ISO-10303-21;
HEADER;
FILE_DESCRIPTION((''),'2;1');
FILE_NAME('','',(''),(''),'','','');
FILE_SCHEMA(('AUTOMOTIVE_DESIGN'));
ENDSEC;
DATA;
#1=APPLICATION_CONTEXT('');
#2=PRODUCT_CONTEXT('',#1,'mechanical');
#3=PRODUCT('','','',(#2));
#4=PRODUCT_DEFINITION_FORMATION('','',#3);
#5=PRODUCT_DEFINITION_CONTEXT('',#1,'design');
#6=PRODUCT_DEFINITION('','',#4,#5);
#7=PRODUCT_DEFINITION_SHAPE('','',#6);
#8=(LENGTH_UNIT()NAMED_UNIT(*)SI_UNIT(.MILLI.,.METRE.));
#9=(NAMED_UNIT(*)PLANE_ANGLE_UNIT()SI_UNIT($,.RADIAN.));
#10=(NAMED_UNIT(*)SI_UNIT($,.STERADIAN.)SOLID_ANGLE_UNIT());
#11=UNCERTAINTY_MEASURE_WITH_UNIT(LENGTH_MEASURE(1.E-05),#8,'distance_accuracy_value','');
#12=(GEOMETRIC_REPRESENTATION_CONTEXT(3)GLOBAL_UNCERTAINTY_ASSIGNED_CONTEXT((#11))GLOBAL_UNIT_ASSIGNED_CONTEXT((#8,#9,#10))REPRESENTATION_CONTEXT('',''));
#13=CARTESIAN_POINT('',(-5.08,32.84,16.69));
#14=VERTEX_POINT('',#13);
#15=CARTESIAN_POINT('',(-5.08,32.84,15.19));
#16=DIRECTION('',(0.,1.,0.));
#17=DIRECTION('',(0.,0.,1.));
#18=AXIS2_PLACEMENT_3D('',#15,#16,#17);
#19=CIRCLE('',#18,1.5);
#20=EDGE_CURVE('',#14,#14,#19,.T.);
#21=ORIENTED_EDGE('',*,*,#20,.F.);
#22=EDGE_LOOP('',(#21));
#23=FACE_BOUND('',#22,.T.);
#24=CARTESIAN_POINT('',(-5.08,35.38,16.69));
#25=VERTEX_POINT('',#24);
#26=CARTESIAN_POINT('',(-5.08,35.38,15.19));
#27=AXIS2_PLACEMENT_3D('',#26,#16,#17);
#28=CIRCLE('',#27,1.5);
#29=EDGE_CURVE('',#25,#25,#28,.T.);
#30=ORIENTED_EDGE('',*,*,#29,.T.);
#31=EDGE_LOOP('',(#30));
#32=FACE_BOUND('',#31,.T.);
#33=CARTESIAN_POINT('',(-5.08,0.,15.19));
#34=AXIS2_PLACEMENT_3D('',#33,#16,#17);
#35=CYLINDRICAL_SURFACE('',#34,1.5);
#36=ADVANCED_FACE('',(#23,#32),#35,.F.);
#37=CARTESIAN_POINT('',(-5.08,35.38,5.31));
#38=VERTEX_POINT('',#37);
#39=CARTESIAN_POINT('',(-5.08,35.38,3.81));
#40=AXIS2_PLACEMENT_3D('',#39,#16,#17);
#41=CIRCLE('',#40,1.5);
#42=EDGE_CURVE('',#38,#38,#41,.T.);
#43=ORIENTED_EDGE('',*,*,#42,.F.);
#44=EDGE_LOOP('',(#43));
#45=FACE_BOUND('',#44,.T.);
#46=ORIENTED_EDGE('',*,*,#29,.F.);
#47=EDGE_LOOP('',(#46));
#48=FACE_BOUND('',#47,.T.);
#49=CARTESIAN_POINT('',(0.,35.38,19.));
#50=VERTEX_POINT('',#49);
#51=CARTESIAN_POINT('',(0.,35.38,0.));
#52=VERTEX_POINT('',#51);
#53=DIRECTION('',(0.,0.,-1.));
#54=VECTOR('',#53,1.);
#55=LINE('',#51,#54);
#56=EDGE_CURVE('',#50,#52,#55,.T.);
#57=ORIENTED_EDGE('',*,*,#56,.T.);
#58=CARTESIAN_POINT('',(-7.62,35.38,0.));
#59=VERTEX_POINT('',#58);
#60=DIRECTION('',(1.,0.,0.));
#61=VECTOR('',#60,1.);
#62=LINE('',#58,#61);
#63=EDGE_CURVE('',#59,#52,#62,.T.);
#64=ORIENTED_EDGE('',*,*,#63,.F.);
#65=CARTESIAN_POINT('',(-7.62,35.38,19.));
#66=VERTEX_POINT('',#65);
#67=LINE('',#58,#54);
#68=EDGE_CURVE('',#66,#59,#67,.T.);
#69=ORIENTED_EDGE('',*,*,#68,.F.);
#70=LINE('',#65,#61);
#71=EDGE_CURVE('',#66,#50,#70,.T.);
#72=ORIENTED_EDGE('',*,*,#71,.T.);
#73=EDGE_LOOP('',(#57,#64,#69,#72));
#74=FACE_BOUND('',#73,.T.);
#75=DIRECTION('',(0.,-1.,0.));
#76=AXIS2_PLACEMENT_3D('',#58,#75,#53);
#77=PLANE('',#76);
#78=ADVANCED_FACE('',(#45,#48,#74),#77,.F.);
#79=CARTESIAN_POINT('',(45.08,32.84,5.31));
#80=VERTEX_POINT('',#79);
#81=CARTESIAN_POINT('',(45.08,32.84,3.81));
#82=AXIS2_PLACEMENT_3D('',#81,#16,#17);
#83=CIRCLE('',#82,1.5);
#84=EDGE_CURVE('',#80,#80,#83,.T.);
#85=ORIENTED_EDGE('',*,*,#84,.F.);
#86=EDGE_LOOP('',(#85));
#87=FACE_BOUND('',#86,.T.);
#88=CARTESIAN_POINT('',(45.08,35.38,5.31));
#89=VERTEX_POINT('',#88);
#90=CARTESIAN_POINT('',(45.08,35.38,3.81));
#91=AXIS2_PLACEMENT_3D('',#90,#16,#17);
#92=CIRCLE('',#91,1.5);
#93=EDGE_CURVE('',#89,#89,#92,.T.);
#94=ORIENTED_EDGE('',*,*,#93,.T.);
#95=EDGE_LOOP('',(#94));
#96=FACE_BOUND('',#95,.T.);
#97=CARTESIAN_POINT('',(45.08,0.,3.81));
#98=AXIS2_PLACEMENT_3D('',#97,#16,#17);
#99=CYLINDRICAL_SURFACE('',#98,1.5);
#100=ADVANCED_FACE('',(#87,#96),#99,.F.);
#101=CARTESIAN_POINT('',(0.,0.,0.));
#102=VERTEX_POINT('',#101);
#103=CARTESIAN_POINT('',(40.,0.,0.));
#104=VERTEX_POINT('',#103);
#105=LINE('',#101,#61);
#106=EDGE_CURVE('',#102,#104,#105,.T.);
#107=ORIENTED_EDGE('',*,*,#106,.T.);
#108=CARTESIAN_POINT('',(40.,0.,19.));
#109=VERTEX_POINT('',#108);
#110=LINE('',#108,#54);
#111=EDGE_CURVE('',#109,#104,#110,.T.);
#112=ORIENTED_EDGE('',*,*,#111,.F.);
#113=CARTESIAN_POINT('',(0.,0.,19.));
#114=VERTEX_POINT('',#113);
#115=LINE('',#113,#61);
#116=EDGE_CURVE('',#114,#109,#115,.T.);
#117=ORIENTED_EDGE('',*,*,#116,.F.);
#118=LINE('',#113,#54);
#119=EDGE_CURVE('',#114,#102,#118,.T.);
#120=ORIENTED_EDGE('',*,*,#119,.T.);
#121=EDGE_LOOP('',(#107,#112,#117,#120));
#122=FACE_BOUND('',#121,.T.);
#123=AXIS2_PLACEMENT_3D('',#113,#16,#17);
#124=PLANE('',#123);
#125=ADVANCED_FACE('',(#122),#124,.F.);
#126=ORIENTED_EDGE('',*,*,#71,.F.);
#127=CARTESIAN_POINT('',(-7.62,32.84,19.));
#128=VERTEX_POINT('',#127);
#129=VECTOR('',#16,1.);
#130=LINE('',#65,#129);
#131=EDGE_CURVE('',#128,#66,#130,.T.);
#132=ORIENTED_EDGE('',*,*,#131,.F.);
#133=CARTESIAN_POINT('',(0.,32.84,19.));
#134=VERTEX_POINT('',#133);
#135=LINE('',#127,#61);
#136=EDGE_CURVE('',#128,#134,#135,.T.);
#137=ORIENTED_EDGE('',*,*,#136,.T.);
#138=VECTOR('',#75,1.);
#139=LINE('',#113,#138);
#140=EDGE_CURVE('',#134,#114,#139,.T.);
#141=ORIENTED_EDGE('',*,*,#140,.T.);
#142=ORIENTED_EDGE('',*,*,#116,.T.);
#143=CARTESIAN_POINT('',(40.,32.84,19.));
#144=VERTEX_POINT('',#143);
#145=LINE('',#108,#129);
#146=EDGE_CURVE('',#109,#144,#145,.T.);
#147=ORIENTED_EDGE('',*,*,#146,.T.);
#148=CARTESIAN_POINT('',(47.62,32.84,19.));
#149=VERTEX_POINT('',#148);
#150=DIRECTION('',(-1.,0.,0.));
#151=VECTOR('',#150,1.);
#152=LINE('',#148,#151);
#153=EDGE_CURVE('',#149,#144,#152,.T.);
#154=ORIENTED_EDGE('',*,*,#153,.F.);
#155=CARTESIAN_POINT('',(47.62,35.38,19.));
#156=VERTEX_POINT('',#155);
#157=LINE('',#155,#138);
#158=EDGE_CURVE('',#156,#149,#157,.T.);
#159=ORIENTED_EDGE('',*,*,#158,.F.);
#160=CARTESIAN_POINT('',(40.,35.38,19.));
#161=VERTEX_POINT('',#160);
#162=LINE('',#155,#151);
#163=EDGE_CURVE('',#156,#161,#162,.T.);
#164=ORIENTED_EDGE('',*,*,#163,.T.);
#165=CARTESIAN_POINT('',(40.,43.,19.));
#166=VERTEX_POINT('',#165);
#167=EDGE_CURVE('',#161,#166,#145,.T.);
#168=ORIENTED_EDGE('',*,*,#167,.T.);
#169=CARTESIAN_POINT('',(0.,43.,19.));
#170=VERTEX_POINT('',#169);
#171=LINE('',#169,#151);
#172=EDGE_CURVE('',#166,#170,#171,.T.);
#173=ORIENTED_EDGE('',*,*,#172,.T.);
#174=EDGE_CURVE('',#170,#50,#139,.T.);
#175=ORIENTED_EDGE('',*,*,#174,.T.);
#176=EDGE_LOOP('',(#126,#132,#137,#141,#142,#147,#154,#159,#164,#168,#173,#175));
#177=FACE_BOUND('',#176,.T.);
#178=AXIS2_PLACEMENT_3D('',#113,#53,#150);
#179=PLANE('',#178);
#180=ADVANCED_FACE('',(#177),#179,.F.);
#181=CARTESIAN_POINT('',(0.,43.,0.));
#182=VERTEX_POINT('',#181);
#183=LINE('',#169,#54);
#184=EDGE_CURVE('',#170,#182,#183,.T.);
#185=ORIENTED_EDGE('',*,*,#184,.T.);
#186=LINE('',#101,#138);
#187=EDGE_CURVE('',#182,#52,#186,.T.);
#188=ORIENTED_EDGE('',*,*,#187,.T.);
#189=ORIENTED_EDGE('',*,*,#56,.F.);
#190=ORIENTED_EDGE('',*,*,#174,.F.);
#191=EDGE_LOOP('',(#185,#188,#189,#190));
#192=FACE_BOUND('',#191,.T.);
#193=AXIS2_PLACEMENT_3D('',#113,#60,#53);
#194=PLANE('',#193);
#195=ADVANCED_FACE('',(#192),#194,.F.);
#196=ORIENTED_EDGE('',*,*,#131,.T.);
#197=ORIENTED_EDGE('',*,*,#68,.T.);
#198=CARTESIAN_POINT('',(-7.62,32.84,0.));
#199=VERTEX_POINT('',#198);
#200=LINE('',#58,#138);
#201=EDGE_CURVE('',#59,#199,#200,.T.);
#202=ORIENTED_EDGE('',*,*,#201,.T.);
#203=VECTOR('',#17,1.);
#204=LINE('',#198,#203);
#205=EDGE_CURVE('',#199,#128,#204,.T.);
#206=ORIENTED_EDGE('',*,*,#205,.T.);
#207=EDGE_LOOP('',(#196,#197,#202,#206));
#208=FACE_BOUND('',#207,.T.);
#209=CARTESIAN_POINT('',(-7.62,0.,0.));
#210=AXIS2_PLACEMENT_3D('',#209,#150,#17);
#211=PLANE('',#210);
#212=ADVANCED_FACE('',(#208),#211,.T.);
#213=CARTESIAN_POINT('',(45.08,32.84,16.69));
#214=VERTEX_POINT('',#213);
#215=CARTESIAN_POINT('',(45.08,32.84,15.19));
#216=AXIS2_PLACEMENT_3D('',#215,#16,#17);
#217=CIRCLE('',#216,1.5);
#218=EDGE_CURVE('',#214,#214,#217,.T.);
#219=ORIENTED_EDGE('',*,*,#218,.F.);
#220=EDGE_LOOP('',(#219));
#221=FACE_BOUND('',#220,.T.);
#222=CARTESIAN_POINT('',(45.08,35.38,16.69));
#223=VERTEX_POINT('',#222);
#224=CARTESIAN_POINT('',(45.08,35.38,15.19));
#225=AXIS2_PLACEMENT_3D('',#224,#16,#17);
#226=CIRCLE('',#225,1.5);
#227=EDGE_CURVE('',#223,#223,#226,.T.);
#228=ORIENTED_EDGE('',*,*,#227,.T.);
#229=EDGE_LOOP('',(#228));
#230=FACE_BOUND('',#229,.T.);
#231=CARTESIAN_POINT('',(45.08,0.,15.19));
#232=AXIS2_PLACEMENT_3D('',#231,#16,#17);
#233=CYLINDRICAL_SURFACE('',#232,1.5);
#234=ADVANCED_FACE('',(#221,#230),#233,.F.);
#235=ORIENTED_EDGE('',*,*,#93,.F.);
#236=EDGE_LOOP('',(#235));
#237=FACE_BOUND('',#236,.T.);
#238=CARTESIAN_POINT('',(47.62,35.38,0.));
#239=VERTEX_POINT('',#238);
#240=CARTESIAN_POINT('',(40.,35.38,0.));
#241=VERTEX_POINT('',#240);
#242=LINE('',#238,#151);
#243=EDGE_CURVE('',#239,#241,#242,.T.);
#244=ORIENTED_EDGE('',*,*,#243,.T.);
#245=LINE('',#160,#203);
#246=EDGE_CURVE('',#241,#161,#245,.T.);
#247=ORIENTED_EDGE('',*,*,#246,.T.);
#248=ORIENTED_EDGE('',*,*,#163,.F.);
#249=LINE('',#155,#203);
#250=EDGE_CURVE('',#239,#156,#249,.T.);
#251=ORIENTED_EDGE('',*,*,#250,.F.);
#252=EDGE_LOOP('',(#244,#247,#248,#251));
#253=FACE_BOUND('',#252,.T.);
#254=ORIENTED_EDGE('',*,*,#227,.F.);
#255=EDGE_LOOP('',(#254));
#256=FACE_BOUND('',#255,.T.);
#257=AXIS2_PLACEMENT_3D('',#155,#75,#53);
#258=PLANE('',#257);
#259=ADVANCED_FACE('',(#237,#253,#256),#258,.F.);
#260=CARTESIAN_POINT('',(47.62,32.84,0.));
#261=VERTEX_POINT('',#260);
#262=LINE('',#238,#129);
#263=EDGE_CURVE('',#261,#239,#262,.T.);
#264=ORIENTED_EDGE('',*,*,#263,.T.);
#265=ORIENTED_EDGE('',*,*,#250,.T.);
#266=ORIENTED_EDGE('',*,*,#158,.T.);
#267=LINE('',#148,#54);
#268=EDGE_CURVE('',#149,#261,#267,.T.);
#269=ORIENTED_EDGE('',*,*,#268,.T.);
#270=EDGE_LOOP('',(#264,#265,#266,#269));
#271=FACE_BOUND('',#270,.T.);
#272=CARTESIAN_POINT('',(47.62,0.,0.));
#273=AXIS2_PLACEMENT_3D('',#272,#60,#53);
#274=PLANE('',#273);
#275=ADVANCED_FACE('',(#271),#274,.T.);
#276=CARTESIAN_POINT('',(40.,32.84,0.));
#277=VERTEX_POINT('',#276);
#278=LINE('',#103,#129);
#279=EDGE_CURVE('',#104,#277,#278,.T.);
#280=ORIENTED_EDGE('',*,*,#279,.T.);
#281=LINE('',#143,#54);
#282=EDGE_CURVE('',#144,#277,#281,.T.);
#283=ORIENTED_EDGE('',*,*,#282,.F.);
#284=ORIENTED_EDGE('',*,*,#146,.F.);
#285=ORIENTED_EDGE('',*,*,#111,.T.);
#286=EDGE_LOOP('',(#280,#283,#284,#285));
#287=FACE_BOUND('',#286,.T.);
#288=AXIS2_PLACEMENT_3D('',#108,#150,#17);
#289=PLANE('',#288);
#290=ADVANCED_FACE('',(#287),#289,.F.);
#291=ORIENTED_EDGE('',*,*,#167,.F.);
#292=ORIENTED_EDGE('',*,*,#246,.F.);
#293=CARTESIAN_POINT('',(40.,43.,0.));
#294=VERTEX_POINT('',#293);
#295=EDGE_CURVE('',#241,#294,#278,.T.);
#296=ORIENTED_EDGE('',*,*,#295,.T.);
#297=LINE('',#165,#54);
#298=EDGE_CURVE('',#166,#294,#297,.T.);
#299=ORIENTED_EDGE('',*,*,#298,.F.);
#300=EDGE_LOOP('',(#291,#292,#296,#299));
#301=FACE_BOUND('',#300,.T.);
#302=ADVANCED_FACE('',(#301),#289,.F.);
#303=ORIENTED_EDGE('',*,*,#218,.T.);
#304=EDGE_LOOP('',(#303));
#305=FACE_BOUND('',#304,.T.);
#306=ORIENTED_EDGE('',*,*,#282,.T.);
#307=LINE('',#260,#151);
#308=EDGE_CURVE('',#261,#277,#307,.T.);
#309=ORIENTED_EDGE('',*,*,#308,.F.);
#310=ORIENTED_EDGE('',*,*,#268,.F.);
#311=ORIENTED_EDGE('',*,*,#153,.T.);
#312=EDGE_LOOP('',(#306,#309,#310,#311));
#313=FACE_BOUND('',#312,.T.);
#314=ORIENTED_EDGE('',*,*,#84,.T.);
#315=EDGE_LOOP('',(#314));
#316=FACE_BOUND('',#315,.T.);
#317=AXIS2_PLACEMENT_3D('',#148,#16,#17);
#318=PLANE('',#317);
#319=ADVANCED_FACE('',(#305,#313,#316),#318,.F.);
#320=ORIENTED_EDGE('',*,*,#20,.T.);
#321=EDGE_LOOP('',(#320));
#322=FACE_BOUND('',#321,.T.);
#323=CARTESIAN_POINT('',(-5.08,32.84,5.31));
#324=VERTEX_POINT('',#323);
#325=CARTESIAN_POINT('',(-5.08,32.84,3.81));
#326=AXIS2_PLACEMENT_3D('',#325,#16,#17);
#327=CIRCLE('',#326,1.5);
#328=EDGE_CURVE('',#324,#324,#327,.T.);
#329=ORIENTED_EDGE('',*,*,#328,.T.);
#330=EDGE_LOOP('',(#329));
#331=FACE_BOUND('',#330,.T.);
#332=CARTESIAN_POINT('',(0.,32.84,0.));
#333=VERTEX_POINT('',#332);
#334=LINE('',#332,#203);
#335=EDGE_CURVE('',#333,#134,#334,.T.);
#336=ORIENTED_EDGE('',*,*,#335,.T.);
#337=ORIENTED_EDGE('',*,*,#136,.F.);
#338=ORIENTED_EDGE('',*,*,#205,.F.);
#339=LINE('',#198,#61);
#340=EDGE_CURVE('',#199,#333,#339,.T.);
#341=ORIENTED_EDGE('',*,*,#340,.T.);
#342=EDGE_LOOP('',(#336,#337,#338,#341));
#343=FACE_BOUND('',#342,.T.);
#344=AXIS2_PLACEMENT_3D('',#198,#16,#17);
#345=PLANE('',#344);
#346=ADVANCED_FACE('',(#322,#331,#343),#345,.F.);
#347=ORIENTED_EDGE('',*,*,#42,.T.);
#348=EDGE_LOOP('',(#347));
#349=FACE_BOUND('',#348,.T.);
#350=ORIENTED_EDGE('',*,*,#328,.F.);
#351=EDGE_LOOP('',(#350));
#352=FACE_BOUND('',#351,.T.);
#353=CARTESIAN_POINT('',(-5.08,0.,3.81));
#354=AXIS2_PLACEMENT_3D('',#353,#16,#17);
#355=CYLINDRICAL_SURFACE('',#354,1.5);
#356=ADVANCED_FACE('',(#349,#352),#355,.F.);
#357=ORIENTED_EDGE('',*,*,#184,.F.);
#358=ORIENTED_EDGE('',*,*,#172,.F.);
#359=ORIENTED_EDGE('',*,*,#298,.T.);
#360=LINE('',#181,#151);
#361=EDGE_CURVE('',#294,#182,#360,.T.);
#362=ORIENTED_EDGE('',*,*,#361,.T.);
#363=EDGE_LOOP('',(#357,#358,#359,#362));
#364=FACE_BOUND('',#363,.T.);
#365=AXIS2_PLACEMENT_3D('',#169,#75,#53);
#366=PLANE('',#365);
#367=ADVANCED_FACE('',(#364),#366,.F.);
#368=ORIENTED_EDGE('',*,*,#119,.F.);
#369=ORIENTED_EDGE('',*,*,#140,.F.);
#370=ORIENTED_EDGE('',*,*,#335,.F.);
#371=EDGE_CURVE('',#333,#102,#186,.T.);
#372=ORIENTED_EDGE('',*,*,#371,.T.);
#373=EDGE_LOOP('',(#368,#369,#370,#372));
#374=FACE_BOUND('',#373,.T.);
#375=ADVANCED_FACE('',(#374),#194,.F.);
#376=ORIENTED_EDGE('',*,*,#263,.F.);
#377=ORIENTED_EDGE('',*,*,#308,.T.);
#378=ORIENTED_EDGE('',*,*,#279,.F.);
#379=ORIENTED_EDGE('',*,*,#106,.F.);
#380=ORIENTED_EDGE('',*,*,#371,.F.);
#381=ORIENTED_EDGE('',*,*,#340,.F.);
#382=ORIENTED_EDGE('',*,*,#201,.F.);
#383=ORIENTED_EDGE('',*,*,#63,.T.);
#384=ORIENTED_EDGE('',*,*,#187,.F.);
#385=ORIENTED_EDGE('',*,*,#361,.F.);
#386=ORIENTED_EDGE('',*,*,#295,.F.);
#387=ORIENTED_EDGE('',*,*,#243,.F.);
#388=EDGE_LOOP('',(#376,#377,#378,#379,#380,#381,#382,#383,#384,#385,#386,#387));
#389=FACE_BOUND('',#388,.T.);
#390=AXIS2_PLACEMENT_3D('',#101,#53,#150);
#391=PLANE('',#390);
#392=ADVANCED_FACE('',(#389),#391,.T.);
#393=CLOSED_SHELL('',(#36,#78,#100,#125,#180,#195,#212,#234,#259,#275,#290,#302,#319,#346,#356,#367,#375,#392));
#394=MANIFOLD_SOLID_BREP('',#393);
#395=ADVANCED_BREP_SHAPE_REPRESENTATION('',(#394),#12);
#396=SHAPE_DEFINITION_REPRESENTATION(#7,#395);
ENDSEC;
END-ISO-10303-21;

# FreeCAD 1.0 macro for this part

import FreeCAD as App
import Part
import Sketcher
Q = App.Units.Quantity


def add_polygon(sketch, points):
    """Adds a closed chain of lines whose ends are joined by coincident constraints."""
    first, n = sketch.GeometryCount, len(points)
    for a, b in zip(points, points[1:] + points[:1]):
        sketch.addGeometry(Part.LineSegment(App.Vector(*a, 0), App.Vector(*b, 0)), False)
    for i in range(n):
        sketch.addConstraint(Sketcher.Constraint("Coincident", first + i, 2, first + (i + 1) % n, 1))

doc = App.newDocument("Part")
body = doc.addObject("PartDesign::Body", "Body")

sketch1 = body.newObject("Sketcher::SketchObject", "Sketch")
sketch1.AttachmentSupport = (doc.getObject("XY_Plane"), [""])
sketch1.MapMode = "FlatFace"
add_polygon(sketch1, [(0, 43), (0, 0), (40, 0), (40, 43)])
sketch1.addConstraint([
    Sketcher.Constraint("Vertical", 0),
    Sketcher.Constraint("Horizontal", 1),
    Sketcher.Constraint("Vertical", 2),
    Sketcher.Constraint("Horizontal", 3),
    Sketcher.Constraint("Coincident", 0, 2, -1, 1),
    Sketcher.Constraint("DistanceX", 1, 1, 1, 2, Q("40 mm")),
    Sketcher.Constraint("DistanceY", 0, 2, 0, 1, Q("43 mm")),
])
pad1 = body.newObject("PartDesign::Pad", "Pad")
pad1.Profile = sketch1
pad1.Length = 19

sketch2 = body.newObject("Sketcher::SketchObject", "Sketch001")
sketch2.AttachmentSupport = (doc.getObject("YZ_Plane"), [""])
sketch2.MapMode = "FlatFace"
sketch2.AttachmentOffset = App.Placement(App.Vector(0, 0, 40), App.Rotation())
add_polygon(sketch2, [(35.4, 19), (32.8, 19), (32.8, 0), (35.4, 0)])
sketch2.addConstraint([
    Sketcher.Constraint("Horizontal", 0),
    Sketcher.Constraint("Vertical", 1),
    Sketcher.Constraint("Horizontal", 2),
    Sketcher.Constraint("Vertical", 3),
    Sketcher.Constraint("PointOnObject", 1, 2, -1),
    Sketcher.Constraint("DistanceY", 1, 2, 1, 1, Q("19 mm")),
    Sketcher.Constraint("DistanceX", 0, 2, 0, 1, Q("2.54 mm")),
    Sketcher.Constraint("DistanceX", -1, 1, 0, 2, Q("32.84 mm")),
])
pad2 = body.newObject("PartDesign::Pad", "Pad001")
pad2.Profile = sketch2
pad2.Length = 7.62

sketch3 = body.newObject("Sketcher::SketchObject", "Sketch002")
sketch3.AttachmentSupport = (doc.getObject("XZ_Plane"), [""])
sketch3.MapMode = "FlatFace"
sketch3.AttachmentOffset = App.Placement(App.Vector(0, 0, -35.38), App.Rotation())
sketch3.addGeometry([
    Part.Circle(App.Vector(45.1, 3.8, 0), App.Vector(0, 0, 1), 1.5),
    Part.Circle(App.Vector(45.1, 15.2, 0), App.Vector(0, 0, 1), 1.5),
], False)
sketch3.addConstraint([
    Sketcher.Constraint("Equal", 0, 1),
    Sketcher.Constraint("Vertical", 0, 3, 1, 3),
    Sketcher.Constraint("Diameter", 0, Q("3 mm")),
    Sketcher.Constraint("DistanceX", -1, 1, 0, 3, Q("45.08 mm")),
    Sketcher.Constraint("DistanceY", -1, 1, 0, 3, Q("3.81 mm")),
    Sketcher.Constraint("DistanceY", -1, 1, 1, 3, Q("15.19 mm")),
])
pocket1 = body.newObject("PartDesign::Pocket", "Pocket")
pocket1.Profile = sketch3
pocket1.Type = "ThroughAll"
pocket1.Reversed = True

sketch4 = body.newObject("Sketcher::SketchObject", "Sketch003")
sketch4.AttachmentSupport = (doc.getObject("YZ_Plane"), [""])
sketch4.MapMode = "FlatFace"
add_polygon(sketch4, [(35.4, 0), (32.8, 0), (32.8, 19), (35.4, 19)])
sketch4.addConstraint([
    Sketcher.Constraint("Horizontal", 0),
    Sketcher.Constraint("Vertical", 1),
    Sketcher.Constraint("Horizontal", 2),
    Sketcher.Constraint("Vertical", 3),
    Sketcher.Constraint("PointOnObject", 0, 2, -1),
    Sketcher.Constraint("DistanceY", 1, 1, 1, 2, Q("19 mm")),
    Sketcher.Constraint("DistanceX", 0, 2, 0, 1, Q("2.54 mm")),
    Sketcher.Constraint("DistanceX", -1, 1, 0, 2, Q("32.84 mm")),
])
pad3 = body.newObject("PartDesign::Pad", "Pad002")
pad3.Profile = sketch4
pad3.Length = 7.62
pad3.Reversed = True

sketch5 = body.newObject("Sketcher::SketchObject", "Sketch004")
sketch5.AttachmentSupport = (doc.getObject("XZ_Plane"), [""])
sketch5.MapMode = "FlatFace"
sketch5.AttachmentOffset = App.Placement(App.Vector(0, 0, -35.38), App.Rotation())
sketch5.addGeometry([
    Part.Circle(App.Vector(-5.1, 3.8, 0), App.Vector(0, 0, 1), 1.5),
    Part.Circle(App.Vector(-5.1, 15.2, 0), App.Vector(0, 0, 1), 1.5),
], False)
sketch5.addConstraint([
    Sketcher.Constraint("Equal", 0, 1),
    Sketcher.Constraint("Vertical", 0, 3, 1, 3),
    Sketcher.Constraint("Diameter", 0, Q("3 mm")),
    Sketcher.Constraint("DistanceX", 0, 3, -1, 1, Q("5.08 mm")),
    Sketcher.Constraint("DistanceY", -1, 1, 0, 3, Q("3.81 mm")),
    Sketcher.Constraint("DistanceY", -1, 1, 1, 3, Q("15.19 mm")),
])
pocket2 = body.newObject("PartDesign::Pocket", "Pocket001")
pocket2.Profile = sketch5
pocket2.Type = "ThroughAll"
pocket2.Reversed = True

doc.recompute()
